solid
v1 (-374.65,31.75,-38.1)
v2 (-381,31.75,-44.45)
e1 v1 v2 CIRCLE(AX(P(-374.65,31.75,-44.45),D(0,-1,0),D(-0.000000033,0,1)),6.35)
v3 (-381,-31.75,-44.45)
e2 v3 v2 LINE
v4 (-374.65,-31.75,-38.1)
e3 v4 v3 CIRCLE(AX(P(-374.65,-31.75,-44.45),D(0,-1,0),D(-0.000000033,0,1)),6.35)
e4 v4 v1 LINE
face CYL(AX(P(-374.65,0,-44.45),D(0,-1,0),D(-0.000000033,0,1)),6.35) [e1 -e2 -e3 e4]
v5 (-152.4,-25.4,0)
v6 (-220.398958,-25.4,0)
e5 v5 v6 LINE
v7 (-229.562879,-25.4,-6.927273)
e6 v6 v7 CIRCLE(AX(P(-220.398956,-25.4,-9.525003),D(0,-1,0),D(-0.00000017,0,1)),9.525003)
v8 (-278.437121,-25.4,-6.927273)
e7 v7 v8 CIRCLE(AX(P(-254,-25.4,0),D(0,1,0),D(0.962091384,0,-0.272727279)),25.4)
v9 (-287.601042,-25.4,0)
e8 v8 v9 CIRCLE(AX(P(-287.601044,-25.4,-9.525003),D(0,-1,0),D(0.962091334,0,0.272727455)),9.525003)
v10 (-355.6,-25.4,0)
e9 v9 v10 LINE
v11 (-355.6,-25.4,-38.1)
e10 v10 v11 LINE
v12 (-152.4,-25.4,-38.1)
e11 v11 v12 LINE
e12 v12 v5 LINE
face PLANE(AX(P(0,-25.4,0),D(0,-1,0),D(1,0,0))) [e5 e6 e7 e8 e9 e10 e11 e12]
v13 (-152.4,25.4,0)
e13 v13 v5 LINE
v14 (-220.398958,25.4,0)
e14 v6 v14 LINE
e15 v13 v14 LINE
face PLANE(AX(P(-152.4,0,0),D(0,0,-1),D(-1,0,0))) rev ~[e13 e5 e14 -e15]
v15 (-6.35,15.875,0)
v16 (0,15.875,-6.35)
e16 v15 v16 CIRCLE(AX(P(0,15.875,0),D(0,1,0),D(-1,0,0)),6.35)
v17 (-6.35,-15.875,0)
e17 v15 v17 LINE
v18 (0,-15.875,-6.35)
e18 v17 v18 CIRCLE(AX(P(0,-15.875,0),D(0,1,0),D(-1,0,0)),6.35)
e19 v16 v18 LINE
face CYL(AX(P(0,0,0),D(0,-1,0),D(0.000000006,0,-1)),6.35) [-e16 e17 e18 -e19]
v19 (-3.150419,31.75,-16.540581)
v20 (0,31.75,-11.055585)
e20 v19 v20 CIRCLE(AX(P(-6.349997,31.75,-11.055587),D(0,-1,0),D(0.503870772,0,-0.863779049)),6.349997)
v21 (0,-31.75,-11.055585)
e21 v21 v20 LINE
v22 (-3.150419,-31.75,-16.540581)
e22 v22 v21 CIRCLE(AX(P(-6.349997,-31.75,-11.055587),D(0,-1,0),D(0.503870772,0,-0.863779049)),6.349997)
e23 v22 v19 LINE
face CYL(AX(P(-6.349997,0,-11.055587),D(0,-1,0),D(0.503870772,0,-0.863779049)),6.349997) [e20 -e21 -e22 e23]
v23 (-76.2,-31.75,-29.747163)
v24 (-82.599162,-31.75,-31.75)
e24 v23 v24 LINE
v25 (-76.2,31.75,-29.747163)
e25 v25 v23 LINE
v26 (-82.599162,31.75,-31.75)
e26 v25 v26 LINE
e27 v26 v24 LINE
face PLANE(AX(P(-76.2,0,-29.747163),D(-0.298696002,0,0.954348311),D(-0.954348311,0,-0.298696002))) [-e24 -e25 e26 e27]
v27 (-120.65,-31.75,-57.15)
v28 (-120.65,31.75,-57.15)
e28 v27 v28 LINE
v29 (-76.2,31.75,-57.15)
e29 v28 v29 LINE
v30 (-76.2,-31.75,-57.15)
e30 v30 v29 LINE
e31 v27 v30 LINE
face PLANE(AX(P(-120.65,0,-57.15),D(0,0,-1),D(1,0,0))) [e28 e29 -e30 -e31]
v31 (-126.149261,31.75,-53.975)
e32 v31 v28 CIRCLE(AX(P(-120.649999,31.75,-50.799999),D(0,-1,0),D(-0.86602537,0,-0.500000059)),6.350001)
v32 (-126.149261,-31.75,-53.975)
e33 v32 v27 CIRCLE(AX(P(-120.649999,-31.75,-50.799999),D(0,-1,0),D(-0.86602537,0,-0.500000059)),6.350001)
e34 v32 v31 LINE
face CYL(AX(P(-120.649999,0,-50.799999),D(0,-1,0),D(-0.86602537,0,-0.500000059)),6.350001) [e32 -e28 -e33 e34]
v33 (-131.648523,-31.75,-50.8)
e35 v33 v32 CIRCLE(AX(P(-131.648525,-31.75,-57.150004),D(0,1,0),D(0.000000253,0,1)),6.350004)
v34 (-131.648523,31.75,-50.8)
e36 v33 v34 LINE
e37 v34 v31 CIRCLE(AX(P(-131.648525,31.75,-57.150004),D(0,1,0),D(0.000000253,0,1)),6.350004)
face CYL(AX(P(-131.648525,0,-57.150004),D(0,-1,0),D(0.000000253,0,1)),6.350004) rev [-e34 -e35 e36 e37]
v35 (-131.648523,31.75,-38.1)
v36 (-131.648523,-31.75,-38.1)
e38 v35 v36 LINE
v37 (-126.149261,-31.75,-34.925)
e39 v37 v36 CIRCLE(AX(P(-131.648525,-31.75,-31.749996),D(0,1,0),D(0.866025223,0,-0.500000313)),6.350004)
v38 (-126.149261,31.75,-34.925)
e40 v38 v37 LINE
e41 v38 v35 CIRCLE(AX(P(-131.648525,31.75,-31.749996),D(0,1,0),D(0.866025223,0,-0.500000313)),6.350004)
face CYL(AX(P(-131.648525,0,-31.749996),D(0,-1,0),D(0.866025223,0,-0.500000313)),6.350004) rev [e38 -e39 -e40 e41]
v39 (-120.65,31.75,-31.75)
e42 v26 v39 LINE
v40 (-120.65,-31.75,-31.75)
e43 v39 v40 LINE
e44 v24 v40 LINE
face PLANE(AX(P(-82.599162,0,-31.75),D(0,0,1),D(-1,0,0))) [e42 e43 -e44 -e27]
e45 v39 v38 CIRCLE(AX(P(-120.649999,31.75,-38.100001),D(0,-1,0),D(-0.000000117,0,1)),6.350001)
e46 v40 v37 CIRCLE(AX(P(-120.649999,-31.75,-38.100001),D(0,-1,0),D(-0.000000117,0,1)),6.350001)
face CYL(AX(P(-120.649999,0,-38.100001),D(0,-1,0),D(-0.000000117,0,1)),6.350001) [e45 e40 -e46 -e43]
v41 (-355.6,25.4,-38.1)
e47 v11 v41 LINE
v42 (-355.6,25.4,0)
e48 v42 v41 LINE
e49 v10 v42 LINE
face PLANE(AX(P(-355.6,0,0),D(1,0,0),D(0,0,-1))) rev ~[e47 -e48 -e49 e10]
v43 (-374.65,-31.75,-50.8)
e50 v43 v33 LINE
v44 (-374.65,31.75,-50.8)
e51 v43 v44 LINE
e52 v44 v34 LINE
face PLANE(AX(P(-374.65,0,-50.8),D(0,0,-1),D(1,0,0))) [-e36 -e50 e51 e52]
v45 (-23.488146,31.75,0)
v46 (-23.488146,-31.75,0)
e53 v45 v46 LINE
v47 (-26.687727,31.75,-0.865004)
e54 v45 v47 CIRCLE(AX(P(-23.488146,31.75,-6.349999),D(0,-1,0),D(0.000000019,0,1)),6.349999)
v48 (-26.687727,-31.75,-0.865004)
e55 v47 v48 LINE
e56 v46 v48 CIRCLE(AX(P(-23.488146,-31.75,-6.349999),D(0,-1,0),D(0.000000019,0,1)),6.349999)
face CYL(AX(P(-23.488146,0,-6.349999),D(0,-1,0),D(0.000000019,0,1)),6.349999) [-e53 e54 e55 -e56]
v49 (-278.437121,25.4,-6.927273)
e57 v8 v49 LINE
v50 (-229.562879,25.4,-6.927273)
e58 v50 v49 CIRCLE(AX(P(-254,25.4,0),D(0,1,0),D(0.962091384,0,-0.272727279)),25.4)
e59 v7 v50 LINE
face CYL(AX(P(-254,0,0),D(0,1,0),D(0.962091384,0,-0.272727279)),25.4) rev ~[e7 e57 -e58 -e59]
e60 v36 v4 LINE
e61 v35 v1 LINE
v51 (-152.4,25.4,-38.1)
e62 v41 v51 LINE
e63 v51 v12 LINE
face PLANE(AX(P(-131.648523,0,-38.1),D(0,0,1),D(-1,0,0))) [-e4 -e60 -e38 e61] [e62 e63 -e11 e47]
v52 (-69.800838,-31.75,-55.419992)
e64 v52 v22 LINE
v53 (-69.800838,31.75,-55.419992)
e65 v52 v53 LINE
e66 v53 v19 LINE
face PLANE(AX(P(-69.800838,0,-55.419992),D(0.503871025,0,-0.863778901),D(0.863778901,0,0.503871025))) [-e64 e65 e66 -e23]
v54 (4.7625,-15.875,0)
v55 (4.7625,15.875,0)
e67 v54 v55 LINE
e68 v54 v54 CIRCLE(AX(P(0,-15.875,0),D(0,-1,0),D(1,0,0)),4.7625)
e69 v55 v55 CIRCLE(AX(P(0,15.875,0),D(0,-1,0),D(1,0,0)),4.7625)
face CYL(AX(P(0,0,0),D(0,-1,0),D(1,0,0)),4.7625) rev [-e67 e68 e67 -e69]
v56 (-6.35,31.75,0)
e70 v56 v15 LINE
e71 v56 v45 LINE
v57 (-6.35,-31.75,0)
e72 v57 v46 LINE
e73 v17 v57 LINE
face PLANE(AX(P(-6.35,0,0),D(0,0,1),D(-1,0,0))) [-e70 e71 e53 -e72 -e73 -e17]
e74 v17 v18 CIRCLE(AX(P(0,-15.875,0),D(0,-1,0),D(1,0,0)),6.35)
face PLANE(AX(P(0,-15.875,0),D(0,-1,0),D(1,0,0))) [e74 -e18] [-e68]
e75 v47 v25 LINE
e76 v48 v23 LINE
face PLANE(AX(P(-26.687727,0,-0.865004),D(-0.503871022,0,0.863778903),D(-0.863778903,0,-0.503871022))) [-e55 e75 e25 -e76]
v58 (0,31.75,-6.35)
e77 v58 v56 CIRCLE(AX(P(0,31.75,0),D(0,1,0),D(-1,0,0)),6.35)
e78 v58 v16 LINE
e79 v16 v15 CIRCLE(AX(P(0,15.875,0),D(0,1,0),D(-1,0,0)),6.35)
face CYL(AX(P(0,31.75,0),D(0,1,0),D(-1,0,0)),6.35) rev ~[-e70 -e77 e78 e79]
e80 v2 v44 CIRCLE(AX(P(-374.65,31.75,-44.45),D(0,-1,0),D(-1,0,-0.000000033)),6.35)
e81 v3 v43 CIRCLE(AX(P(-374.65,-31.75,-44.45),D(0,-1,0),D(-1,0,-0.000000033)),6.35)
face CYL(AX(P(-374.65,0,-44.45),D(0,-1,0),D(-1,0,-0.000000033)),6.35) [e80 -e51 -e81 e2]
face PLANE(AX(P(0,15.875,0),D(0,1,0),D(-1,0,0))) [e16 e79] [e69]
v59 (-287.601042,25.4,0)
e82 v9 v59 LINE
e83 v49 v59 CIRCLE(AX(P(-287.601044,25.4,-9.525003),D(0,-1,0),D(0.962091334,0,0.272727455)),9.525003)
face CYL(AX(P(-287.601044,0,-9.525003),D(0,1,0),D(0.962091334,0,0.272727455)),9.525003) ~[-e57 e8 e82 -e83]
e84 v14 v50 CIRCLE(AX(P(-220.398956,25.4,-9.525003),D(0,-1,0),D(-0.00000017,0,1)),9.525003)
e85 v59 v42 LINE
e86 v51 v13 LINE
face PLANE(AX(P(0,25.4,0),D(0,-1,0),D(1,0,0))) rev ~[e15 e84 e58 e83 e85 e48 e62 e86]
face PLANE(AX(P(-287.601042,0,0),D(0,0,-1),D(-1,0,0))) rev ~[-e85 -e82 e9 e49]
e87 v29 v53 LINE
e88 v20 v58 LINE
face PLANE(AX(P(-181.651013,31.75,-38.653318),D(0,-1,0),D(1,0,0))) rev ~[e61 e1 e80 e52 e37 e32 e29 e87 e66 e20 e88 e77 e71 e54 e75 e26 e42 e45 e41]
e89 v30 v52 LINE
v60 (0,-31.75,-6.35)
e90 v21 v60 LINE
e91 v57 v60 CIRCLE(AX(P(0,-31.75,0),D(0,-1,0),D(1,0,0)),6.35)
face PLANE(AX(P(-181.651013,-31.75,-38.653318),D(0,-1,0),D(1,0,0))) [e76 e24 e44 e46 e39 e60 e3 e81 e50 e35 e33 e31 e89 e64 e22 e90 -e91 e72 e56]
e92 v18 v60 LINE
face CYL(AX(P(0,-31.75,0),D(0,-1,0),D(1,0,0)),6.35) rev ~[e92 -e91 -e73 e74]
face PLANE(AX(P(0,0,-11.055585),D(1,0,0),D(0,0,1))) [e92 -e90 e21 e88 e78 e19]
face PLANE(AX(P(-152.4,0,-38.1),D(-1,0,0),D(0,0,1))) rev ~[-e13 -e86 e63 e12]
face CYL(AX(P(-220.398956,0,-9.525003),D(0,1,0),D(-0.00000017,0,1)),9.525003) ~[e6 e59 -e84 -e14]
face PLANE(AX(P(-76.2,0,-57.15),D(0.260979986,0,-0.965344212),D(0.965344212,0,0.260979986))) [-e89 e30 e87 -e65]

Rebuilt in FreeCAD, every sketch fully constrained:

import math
import FreeCAD as App
import Part
import Sketcher
from FreeCAD import Vector
Q = App.Units.Quantity

doc = App.newDocument("Part")
body = doc.addObject("PartDesign::Body", "Body")

sketch1 = body.newObject("Sketcher::SketchObject", "Sketch")
sketch1.AttachmentSupport = (doc.getObject("XZ_Plane"), [""])
sketch1.MapMode = "FlatFace"
sketch1.addGeometry([
    Part.LineSegment(Vector(0, -11.055585, 0), Vector(0, -6.35, 0)),
    Part.ArcOfCircle(Part.Circle(Vector(0, 0, 0), Vector(0, 0, 1), 6.35), math.radians(-90), math.radians(180)),
    Part.LineSegment(Vector(-6.35, 0, 0), Vector(-23.488146, 0, 0)),
    Part.ArcOfCircle(Part.Circle(Vector(-23.488146, -6.349999, 0), Vector(0, 0, 1), 6.349999), math.radians(89.999999), math.radians(120.256439)),
    Part.LineSegment(Vector(-26.687727, -0.865004, 0), Vector(-76.2, -29.747163, 0)),
    Part.LineSegment(Vector(-76.2, -29.747163, 0), Vector(-82.599162, -31.75, 0)),
    Part.LineSegment(Vector(-82.599162, -31.75, 0), Vector(-120.65, -31.75, 0)),
    Part.ArcOfCircle(Part.Circle(Vector(-120.649999, -38.100001, 0), Vector(0, 0, 1), 6.350001), math.radians(90.000007), math.radians(149.999996)),
    Part.ArcOfCircle(Part.Circle(Vector(-131.648525, -31.749996, 0), Vector(0, 0, 1), 6.350004), math.radians(-89.999985), math.radians(-30.000021)),
    Part.LineSegment(Vector(-131.648523, -38.1, 0), Vector(-374.65, -38.1, 0)),
    Part.ArcOfCircle(Part.Circle(Vector(-374.65, -44.45, 0), Vector(0, 0, 1), 6.35), math.radians(90.000002), math.radians(179.999998)),
    Part.ArcOfCircle(Part.Circle(Vector(-374.65, -44.45, 0), Vector(0, 0, 1), 6.35), math.radians(-179.999998), math.radians(-90.000002)),
    Part.LineSegment(Vector(-374.65, -50.8, 0), Vector(-131.648523, -50.8, 0)),
    Part.ArcOfCircle(Part.Circle(Vector(-131.648525, -57.150004, 0), Vector(0, 0, 1), 6.350004), math.radians(30.000021), math.radians(89.999985)),
    Part.ArcOfCircle(Part.Circle(Vector(-120.649999, -50.799999, 0), Vector(0, 0, 1), 6.350001), math.radians(-149.999996), math.radians(-90.000007)),
    Part.LineSegment(Vector(-120.65, -57.15, 0), Vector(-76.2, -57.15, 0)),
    Part.LineSegment(Vector(-76.2, -57.15, 0), Vector(-69.800838, -55.419992, 0)),
    Part.LineSegment(Vector(-69.800838, -55.419992, 0), Vector(-3.150419, -16.540581, 0)),
    Part.ArcOfCircle(Part.Circle(Vector(-6.349997, -11.055587, 0), Vector(0, 0, 1), 6.349997), math.radians(-59.74358), math.radians(0.000016)),
    Part.Circle(Vector(0, 0, 0), Vector(0, 0, 1), 4.7625),
], False)
sketch1.addConstraint([
    Sketcher.Constraint("Coincident", 0, 2, 1, 1),
    Sketcher.Constraint("Coincident", 1, 2, 2, 1),
    Sketcher.Constraint("Tangent", 2, 2, 3, 1),
    Sketcher.Constraint("Tangent", 3, 2, 4, 1),
    Sketcher.Constraint("Coincident", 4, 2, 5, 1),
    Sketcher.Constraint("Coincident", 5, 2, 6, 1),
    Sketcher.Constraint("Tangent", 6, 2, 7, 1),
    Sketcher.Constraint("Tangent", 7, 2, 8, 2),
    Sketcher.Constraint("Tangent", 8, 1, 9, 1),
    Sketcher.Constraint("Tangent", 9, 2, 10, 1),
    Sketcher.Constraint("Tangent", 10, 2, 11, 1),
    Sketcher.Constraint("Tangent", 11, 2, 12, 1),
    Sketcher.Constraint("Tangent", 12, 2, 13, 2),
    Sketcher.Constraint("Tangent", 13, 1, 14, 1),
    Sketcher.Constraint("Tangent", 14, 2, 15, 1),
    Sketcher.Constraint("Coincident", 15, 2, 16, 1),
    Sketcher.Constraint("Coincident", 16, 2, 17, 1),
    Sketcher.Constraint("Tangent", 17, 2, 18, 1),
    Sketcher.Constraint("Tangent", 18, 2, 0, 1),
    Sketcher.Constraint("Vertical", 0),
    Sketcher.Constraint("Horizontal", 2),
    Sketcher.Constraint("Horizontal", 6),
    Sketcher.Constraint("Horizontal", 9),
    Sketcher.Constraint("Horizontal", 12),
    Sketcher.Constraint("Horizontal", 15),
    Sketcher.Constraint("Coincident", 1, 3, -1, 1),
    Sketcher.Constraint("Coincident", 19, 3, -1, 1),
    Sketcher.Constraint("Equal", 1, 3),
    Sketcher.Constraint("Equal", 3, 7),
    Sketcher.Constraint("Equal", 7, 10),
    Sketcher.Constraint("Equal", 10, 11),
    Sketcher.Constraint("Equal", 8, 13),
    Sketcher.Constraint("Equal", 11, 14),
    Sketcher.Constraint("PointOnObject", 0, 2, -2),
    Sketcher.Constraint("PointOnObject", 1, 2, -1),
    Sketcher.Constraint("Parallel", 4, 17),
    Sketcher.Constraint("Horizontal", 7, 3, 8, 1),
    Sketcher.Constraint("Horizontal", 11, 3, 10, 2),
    Sketcher.Constraint("Horizontal", 14, 3, 11, 2),
    Sketcher.Constraint("Vertical", 8, 3, 13, 3),
    Sketcher.Constraint("Vertical", 4, 2, 15, 2),
    Sketcher.Constraint("Radius", 1, Q("0.25 in")),
    Sketcher.Constraint("Radius", 8, Q("0.2500002 in")),
    Sketcher.Constraint("Radius", 18, Q("0.2499999 in")),
    Sketcher.Constraint("Diameter", 19, Q("0.375 in")),
    Sketcher.Constraint("DistanceY", 14, 3, -1, 1, Q("2 in")),
    Sketcher.Constraint("DistanceX", 4, 2, -1, 1, Q("3 in")),
    Sketcher.Constraint("DistanceX", 10, 2, -1, 1, Q("15 in")),
    Sketcher.Constraint("DistanceX", 10, 3, 7, 3, Q("10 in")),
    Sketcher.Constraint("Distance", 4, 57.32054),
    Sketcher.Constraint("Distance", 5, 6.705269),
    Sketcher.Constraint("Distance", 16, 6.628891),
    Sketcher.Constraint("DistanceX", 2, 2, 2, 1, 17.138146),
    Sketcher.Constraint("DistanceY", 0, 1, 0, 2, 4.705585),
])
pad1 = body.newObject("PartDesign::Pad", "Pad")
pad1.Profile = sketch1
pad1.Type = "TwoLengths"
pad1.Length = Q("1.25 in")
pad1.Length2 = Q("1.25 in")

sketch2 = body.newObject("Sketcher::SketchObject", "Sketch001")
sketch2.AttachmentSupport = (doc.getObject("XZ_Plane"), [""])
sketch2.MapMode = "FlatFace"
sketch2.addGeometry([
    Part.LineSegment(Vector(0, -11.055585, 0), Vector(0, -6.35, 0)),
    Part.ArcOfCircle(Part.Circle(Vector(0, 0, 0), Vector(0, 0, 1), 6.35), math.radians(-90), math.radians(180)),
    Part.LineSegment(Vector(-6.35, 0, 0), Vector(-23.488146, 0, 0)),
    Part.ArcOfCircle(Part.Circle(Vector(-23.488146, -6.349999, 0), Vector(0, 0, 1), 6.349999), math.radians(89.999999), math.radians(120.256439)),
    Part.LineSegment(Vector(-26.687727, -0.865004, 0), Vector(-76.2, -29.747163, 0)),
    Part.LineSegment(Vector(-76.2, -29.747163, 0), Vector(-82.599162, -31.75, 0)),
    Part.LineSegment(Vector(-82.599162, -31.75, 0), Vector(-120.65, -31.75, 0)),
    Part.ArcOfCircle(Part.Circle(Vector(-120.649999, -38.100001, 0), Vector(0, 0, 1), 6.350001), math.radians(90.000007), math.radians(149.999996)),
    Part.ArcOfCircle(Part.Circle(Vector(-131.648525, -31.749996, 0), Vector(0, 0, 1), 6.350004), math.radians(-89.999985), math.radians(-30.000021)),
    Part.LineSegment(Vector(-131.648523, -38.1, 0), Vector(-152.4, -38.1, 0)),
    Part.LineSegment(Vector(-152.4, -38.1, 0), Vector(-152.4, 0, 0)),
    Part.LineSegment(Vector(-152.4, 0, 0), Vector(-220.398958, 0, 0)),
    Part.ArcOfCircle(Part.Circle(Vector(-220.398956, -9.525003, 0), Vector(0, 0, 1), 9.525003), math.radians(90.00001), math.radians(164.173369)),
    Part.ArcOfCircle(Part.Circle(Vector(-254, 0, 0), Vector(0, 0, 1), 25.4), math.radians(-164.17338), math.radians(-15.82662)),
    Part.ArcOfCircle(Part.Circle(Vector(-287.601044, -9.525003, 0), Vector(0, 0, 1), 9.525003), math.radians(15.826631), math.radians(89.99999)),
    Part.LineSegment(Vector(-287.601042, 0, 0), Vector(-355.6, 0, 0)),
    Part.LineSegment(Vector(-355.6, 0, 0), Vector(-355.6, -38.1, 0)),
    Part.LineSegment(Vector(-355.6, -38.1, 0), Vector(-374.65, -38.1, 0)),
    Part.ArcOfCircle(Part.Circle(Vector(-374.65, -44.45, 0), Vector(0, 0, 1), 6.35), math.radians(90.000002), math.radians(179.999998)),
    Part.ArcOfCircle(Part.Circle(Vector(-374.65, -44.45, 0), Vector(0, 0, 1), 6.35), math.radians(-179.999998), math.radians(-90.000002)),
    Part.LineSegment(Vector(-374.65, -50.8, 0), Vector(-131.648523, -50.8, 0)),
    Part.ArcOfCircle(Part.Circle(Vector(-131.648525, -57.150004, 0), Vector(0, 0, 1), 6.350004), math.radians(30.000021), math.radians(89.999985)),
    Part.ArcOfCircle(Part.Circle(Vector(-120.649999, -50.799999, 0), Vector(0, 0, 1), 6.350001), math.radians(-149.999996), math.radians(-90.000007)),
    Part.LineSegment(Vector(-120.65, -57.15, 0), Vector(-76.2, -57.15, 0)),
    Part.LineSegment(Vector(-76.2, -57.15, 0), Vector(-69.800838, -55.419992, 0)),
    Part.LineSegment(Vector(-69.800838, -55.419992, 0), Vector(-3.150419, -16.540581, 0)),
    Part.ArcOfCircle(Part.Circle(Vector(-6.349997, -11.055587, 0), Vector(0, 0, 1), 6.349997), math.radians(-59.74358), math.radians(0.000016)),
    Part.Circle(Vector(0, 0, 0), Vector(0, 0, 1), 4.7625),
], False)
sketch2.addConstraint([
    Sketcher.Constraint("Coincident", 0, 2, 1, 1),
    Sketcher.Constraint("Coincident", 1, 2, 2, 1),
    Sketcher.Constraint("Tangent", 2, 2, 3, 1),
    Sketcher.Constraint("Tangent", 3, 2, 4, 1),
    Sketcher.Constraint("Coincident", 4, 2, 5, 1),
    Sketcher.Constraint("Coincident", 5, 2, 6, 1),
    Sketcher.Constraint("Tangent", 6, 2, 7, 1),
    Sketcher.Constraint("Tangent", 7, 2, 8, 2),
    Sketcher.Constraint("Tangent", 8, 1, 9, 1),
    Sketcher.Constraint("Coincident", 9, 2, 10, 1),
    Sketcher.Constraint("Coincident", 10, 2, 11, 1),
    Sketcher.Constraint("Tangent", 11, 2, 12, 1),
    Sketcher.Constraint("Tangent", 12, 2, 13, 2),
    Sketcher.Constraint("Tangent", 13, 1, 14, 1),
    Sketcher.Constraint("Tangent", 14, 2, 15, 1),
    Sketcher.Constraint("Coincident", 15, 2, 16, 1),
    Sketcher.Constraint("Coincident", 16, 2, 17, 1),
    Sketcher.Constraint("Tangent", 17, 2, 18, 1),
    Sketcher.Constraint("Tangent", 18, 2, 19, 1),
    Sketcher.Constraint("Tangent", 19, 2, 20, 1),
    Sketcher.Constraint("Tangent", 20, 2, 21, 2),
    Sketcher.Constraint("Tangent", 21, 1, 22, 1),
    Sketcher.Constraint("Tangent", 22, 2, 23, 1),
    Sketcher.Constraint("Coincident", 23, 2, 24, 1),
    Sketcher.Constraint("Coincident", 24, 2, 25, 1),
    Sketcher.Constraint("Tangent", 25, 2, 26, 1),
    Sketcher.Constraint("Tangent", 26, 2, 0, 1),
    Sketcher.Constraint("Vertical", 0),
    Sketcher.Constraint("Horizontal", 2),
    Sketcher.Constraint("Horizontal", 6),
    Sketcher.Constraint("Horizontal", 9),
    Sketcher.Constraint("Vertical", 10),
    Sketcher.Constraint("Horizontal", 11),
    Sketcher.Constraint("Horizontal", 15),
    Sketcher.Constraint("Vertical", 16),
    Sketcher.Constraint("Horizontal", 17),
    Sketcher.Constraint("Horizontal", 20),
    Sketcher.Constraint("Horizontal", 23),
    Sketcher.Constraint("Coincident", 1, 3, -1, 1),
    Sketcher.Constraint("Coincident", 27, 3, -1, 1),
    Sketcher.Constraint("Equal", 1, 3),
    Sketcher.Constraint("Equal", 3, 7),
    Sketcher.Constraint("Equal", 12, 14),
    Sketcher.Constraint("Equal", 7, 18),
    Sketcher.Constraint("Equal", 18, 19),
    Sketcher.Constraint("Equal", 8, 21),
    Sketcher.Constraint("Equal", 19, 22),
    Sketcher.Constraint("PointOnObject", 13, 3, -1),
    Sketcher.Constraint("PointOnObject", 0, 2, -2),
    Sketcher.Constraint("PointOnObject", 1, 2, -1),
    Sketcher.Constraint("PointOnObject", 10, 2, -1),
    Sketcher.Constraint("PointOnObject", 14, 2, -1),
    Sketcher.Constraint("Parallel", 4, 25),
    Sketcher.Constraint("Horizontal", 7, 3, 8, 1),
    Sketcher.Constraint("Horizontal", 9, 2, 16, 2),
    Sketcher.Constraint("Horizontal", 19, 3, 18, 2),
    Sketcher.Constraint("Horizontal", 22, 3, 19, 2),
    Sketcher.Constraint("Vertical", 8, 3, 21, 3),
    Sketcher.Constraint("Vertical", 4, 2, 23, 2),
    Sketcher.Constraint("Equal", 11, 15),
    Sketcher.Constraint("Radius", 13, Q("1 in")),
    Sketcher.Constraint("Radius", 1, Q("0.25 in")),
    Sketcher.Constraint("Radius", 8, Q("0.2500002 in")),
    Sketcher.Constraint("Radius", 26, Q("0.2499999 in")),
    Sketcher.Constraint("Diameter", 27, Q("0.375 in")),
    Sketcher.Constraint("DistanceY", 10, 1, 10, 2, Q("1.5 in")),
    Sketcher.Constraint("DistanceX", 13, 3, -1, 1, Q("10 in")),
    Sketcher.Constraint("DistanceX", 4, 2, -1, 1, Q("3 in")),
    Sketcher.Constraint("DistanceX", 9, 2, -1, 1, Q("6 in")),
    Sketcher.Constraint("DistanceX", 18, 2, -1, 1, Q("15 in")),
    Sketcher.Constraint("Radius", 12, Q("0.3750001 in")),
    Sketcher.Constraint("DistanceX", 18, 3, 7, 3, Q("10 in")),
    Sketcher.Constraint("Distance", 4, 57.32054),
    Sketcher.Constraint("Distance", 5, 6.705269),
    Sketcher.Constraint("Distance", 24, 6.628891),
    Sketcher.Constraint("DistanceX", 2, 2, 2, 1, 17.138146),
    Sketcher.Constraint("DistanceY", 0, 1, 0, 2, 4.705585),
])
pad2 = body.newObject("PartDesign::Pad", "Pad001")
pad2.Profile = sketch2
pad2.Type = "TwoLengths"
pad2.Length = Q("1 in")
pad2.Length2 = Q("1 in")

sketch3 = body.newObject("Sketcher::SketchObject", "Sketch002")
sketch3.AttachmentSupport = (doc.getObject("XZ_Plane"), [""])
sketch3.MapMode = "FlatFace"
sketch3.AttachmentOffset = App.Placement(Vector(0, 0, -1.25 * 25.4), App.Rotation())
sketch3.addGeometry(Part.Circle(Vector(0, 0, 0), Vector(0, 0, 1), 6.35), False)
sketch3.addConstraint([
    Sketcher.Constraint("Coincident", 0, 3, -1, 1),
    Sketcher.Constraint("Diameter", 0, Q("0.5 in")),
])
pocket1 = body.newObject("PartDesign::Pocket", "Pocket")
pocket1.Profile = sketch3
pocket1.Length = Q("0.625 in")
pocket1.Reversed = True

sketch4 = body.newObject("Sketcher::SketchObject", "Sketch003")
sketch4.AttachmentSupport = (doc.getObject("XZ_Plane"), [""])
sketch4.MapMode = "FlatFace"
sketch4.AttachmentOffset = App.Placement(Vector(0, 0, 1.25 * 25.4), App.Rotation())
sketch4.addGeometry(Part.Circle(Vector(0, 0, 0), Vector(0, 0, 1), 6.35), False)
sketch4.addConstraint([
    Sketcher.Constraint("Coincident", 0, 3, -1, 1),
    Sketcher.Constraint("Diameter", 0, Q("0.5 in")),
])
pocket2 = body.newObject("PartDesign::Pocket", "Pocket001")
pocket2.Profile = sketch4
pocket2.Length = Q("0.625 in")

doc.recompute()
